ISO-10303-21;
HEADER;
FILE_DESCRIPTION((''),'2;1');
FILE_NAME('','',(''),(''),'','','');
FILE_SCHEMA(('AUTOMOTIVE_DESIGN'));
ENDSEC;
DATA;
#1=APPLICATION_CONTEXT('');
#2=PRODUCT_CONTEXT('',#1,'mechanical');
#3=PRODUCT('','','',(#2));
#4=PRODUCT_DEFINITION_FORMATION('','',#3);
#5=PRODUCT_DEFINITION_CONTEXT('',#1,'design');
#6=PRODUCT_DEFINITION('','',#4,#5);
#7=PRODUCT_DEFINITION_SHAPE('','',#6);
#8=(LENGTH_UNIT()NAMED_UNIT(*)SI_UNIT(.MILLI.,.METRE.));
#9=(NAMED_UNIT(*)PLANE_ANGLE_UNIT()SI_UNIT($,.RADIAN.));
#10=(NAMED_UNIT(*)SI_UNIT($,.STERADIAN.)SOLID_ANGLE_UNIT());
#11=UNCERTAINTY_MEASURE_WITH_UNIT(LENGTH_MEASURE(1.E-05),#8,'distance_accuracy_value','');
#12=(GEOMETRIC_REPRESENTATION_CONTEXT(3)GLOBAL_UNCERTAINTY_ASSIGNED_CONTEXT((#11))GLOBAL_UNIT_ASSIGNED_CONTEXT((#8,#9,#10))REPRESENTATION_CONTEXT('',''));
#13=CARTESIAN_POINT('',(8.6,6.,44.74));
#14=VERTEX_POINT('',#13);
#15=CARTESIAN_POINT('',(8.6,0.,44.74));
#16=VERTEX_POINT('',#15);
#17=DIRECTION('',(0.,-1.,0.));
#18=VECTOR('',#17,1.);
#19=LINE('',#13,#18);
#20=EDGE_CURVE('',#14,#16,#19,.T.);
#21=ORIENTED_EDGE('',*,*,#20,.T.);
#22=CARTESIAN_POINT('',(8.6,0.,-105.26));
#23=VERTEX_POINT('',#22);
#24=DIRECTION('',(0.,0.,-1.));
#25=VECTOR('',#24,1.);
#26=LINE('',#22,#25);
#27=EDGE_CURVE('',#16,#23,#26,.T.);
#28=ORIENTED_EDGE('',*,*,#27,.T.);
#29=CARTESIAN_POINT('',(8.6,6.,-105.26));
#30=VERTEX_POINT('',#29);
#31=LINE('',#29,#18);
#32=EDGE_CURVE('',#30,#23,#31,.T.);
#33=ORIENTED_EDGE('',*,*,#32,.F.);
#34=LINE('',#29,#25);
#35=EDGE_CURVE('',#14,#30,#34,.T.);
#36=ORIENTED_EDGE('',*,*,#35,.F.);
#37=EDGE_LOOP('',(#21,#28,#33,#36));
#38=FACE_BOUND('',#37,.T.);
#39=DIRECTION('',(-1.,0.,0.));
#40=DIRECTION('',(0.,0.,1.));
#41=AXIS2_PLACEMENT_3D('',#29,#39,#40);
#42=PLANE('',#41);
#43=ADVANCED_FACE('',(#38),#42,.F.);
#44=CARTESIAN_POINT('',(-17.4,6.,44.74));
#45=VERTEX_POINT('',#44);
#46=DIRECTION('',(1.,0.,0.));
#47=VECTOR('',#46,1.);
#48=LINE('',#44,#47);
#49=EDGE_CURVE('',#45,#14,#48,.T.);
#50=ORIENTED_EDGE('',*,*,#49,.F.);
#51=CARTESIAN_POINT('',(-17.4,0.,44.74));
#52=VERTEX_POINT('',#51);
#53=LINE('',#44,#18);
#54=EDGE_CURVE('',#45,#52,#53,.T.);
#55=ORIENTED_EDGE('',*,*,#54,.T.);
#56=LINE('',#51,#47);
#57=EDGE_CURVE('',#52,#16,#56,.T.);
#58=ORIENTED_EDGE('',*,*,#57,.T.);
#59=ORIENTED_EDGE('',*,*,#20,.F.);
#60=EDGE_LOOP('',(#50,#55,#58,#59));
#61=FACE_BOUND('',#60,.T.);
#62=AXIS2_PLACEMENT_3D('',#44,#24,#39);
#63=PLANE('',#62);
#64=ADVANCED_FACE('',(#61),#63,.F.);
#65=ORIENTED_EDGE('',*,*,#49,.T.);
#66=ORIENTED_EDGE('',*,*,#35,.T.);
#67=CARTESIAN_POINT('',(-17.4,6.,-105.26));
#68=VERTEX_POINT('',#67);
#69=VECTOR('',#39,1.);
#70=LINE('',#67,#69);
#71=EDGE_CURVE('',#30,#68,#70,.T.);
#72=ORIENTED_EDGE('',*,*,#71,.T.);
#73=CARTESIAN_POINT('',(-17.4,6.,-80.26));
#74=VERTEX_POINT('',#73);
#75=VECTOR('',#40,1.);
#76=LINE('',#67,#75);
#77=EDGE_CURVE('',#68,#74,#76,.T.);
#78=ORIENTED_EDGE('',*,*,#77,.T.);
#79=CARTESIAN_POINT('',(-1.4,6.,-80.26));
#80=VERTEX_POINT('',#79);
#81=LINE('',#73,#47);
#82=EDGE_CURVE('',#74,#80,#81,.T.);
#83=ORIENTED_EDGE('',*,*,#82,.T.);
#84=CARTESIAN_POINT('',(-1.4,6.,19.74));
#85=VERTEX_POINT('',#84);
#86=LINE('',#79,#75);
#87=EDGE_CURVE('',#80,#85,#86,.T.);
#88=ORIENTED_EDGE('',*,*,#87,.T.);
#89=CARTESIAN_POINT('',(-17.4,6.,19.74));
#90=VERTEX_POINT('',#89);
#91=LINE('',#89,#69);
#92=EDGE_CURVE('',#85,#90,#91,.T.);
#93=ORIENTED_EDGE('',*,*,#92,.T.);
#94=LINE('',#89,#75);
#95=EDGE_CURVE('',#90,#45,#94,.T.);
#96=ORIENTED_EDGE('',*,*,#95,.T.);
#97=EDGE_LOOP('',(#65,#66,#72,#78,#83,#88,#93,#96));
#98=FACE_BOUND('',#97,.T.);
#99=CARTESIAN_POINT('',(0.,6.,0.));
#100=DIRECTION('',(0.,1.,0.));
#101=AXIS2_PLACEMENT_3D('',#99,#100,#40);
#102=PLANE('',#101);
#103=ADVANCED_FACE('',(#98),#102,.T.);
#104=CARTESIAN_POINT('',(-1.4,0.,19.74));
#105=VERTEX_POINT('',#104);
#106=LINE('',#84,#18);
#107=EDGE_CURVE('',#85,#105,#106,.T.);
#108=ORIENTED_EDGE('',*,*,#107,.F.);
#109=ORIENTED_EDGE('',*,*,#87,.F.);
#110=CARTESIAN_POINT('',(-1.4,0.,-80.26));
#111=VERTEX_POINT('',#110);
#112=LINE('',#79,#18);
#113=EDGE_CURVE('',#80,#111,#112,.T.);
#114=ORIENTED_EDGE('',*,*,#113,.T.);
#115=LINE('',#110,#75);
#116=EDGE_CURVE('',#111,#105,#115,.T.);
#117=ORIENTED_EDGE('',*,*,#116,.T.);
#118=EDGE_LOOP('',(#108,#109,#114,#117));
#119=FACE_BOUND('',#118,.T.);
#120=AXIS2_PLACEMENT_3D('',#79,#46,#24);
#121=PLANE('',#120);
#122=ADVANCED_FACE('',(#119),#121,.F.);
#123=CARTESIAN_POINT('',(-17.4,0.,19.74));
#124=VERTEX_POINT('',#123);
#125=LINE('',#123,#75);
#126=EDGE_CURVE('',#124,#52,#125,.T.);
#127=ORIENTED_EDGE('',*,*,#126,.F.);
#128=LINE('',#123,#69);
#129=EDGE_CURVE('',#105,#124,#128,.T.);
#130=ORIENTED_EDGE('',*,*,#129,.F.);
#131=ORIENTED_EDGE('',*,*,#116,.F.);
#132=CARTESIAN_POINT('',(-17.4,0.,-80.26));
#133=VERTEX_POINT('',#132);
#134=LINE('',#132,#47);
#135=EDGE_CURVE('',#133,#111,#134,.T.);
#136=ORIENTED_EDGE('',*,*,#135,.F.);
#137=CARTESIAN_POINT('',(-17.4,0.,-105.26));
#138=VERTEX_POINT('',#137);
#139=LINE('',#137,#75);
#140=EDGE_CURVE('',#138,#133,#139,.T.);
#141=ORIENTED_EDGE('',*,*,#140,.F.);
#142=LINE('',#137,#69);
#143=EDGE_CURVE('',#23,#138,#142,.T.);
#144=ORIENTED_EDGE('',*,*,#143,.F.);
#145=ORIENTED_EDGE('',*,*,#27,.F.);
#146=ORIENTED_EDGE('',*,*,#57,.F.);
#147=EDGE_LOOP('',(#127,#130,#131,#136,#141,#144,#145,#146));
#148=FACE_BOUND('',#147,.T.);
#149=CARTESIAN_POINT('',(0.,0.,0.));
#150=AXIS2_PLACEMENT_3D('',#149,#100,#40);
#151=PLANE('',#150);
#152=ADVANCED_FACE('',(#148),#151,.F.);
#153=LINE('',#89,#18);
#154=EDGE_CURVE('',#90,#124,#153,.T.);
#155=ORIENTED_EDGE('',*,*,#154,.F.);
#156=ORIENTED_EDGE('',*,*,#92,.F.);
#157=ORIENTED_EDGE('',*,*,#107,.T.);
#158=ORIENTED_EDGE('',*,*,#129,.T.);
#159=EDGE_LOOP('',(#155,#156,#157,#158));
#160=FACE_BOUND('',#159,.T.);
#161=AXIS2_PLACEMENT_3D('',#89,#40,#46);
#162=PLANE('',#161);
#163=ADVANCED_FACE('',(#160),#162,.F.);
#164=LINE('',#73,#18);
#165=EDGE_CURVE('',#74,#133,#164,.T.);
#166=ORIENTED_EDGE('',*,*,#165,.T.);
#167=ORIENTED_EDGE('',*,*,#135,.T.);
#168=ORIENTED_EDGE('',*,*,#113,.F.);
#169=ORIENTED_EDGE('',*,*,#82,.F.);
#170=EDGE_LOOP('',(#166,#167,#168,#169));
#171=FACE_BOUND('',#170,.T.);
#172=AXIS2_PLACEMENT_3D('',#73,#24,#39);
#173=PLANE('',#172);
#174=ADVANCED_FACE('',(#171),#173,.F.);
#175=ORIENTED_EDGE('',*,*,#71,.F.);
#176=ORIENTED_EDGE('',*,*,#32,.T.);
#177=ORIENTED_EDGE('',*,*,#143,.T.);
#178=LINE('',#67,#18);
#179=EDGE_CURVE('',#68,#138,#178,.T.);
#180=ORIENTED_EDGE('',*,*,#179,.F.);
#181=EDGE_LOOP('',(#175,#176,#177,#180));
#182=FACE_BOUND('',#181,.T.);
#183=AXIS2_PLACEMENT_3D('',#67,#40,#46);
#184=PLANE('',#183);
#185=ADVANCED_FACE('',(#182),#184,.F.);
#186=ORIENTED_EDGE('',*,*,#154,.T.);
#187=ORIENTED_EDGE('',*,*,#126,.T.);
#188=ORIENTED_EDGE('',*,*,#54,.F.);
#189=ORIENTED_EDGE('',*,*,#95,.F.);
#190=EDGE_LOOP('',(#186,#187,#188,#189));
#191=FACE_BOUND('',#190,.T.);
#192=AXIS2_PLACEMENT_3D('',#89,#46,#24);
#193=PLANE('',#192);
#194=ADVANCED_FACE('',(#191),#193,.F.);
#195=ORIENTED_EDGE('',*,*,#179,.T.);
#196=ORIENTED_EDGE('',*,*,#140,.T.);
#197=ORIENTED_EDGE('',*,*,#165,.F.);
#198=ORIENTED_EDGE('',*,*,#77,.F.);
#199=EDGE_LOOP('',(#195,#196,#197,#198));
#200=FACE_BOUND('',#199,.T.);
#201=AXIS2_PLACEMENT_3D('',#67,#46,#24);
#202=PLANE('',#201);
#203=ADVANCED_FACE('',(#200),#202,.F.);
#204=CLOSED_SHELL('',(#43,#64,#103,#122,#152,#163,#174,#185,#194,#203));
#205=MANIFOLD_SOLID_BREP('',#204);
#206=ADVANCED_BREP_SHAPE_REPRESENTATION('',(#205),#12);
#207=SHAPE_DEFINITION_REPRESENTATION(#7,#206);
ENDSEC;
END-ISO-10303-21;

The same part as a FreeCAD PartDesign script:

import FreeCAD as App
import Part
import Sketcher
from FreeCAD import Vector
Q = App.Units.Quantity

doc = App.newDocument("Part")
body = doc.addObject("PartDesign::Body", "Body")

sketch1 = body.newObject("Sketcher::SketchObject", "Sketch")
sketch1.AttachmentSupport = (doc.getObject("XZ_Plane"), [""])
sketch1.MapMode = "FlatFace"
sketch1.addGeometry([
    Part.LineSegment(Vector(-17.4, 19.74, 0), Vector(-17.4, 44.74, 0)),
    Part.LineSegment(Vector(-17.4, 44.74, 0), Vector(8.6, 44.74, 0)),
    Part.LineSegment(Vector(8.6, 44.74, 0), Vector(8.6, -105.26, 0)),
    Part.LineSegment(Vector(8.6, -105.26, 0), Vector(-17.4, -105.26, 0)),
    Part.LineSegment(Vector(-17.4, -105.26, 0), Vector(-17.4, -80.26, 0)),
    Part.LineSegment(Vector(-17.4, -80.26, 0), Vector(-1.4, -80.26, 0)),
    Part.LineSegment(Vector(-1.4, -80.26, 0), Vector(-1.4, 19.74, 0)),
    Part.LineSegment(Vector(-1.4, 19.74, 0), Vector(-17.4, 19.74, 0)),
], False)
sketch1.addConstraint([
    Sketcher.Constraint("Coincident", 0, 2, 1, 1),
    Sketcher.Constraint("Coincident", 1, 2, 2, 1),
    Sketcher.Constraint("Coincident", 2, 2, 3, 1),
    Sketcher.Constraint("Coincident", 3, 2, 4, 1),
    Sketcher.Constraint("Coincident", 4, 2, 5, 1),
    Sketcher.Constraint("Coincident", 5, 2, 6, 1),
    Sketcher.Constraint("Coincident", 6, 2, 7, 1),
    Sketcher.Constraint("Coincident", 7, 2, 0, 1),
    Sketcher.Constraint("Vertical", 0),
    Sketcher.Constraint("Horizontal", 1),
    Sketcher.Constraint("Vertical", 2),
    Sketcher.Constraint("Horizontal", 3),
    Sketcher.Constraint("Vertical", 4),
    Sketcher.Constraint("Horizontal", 5),
    Sketcher.Constraint("Vertical", 6),
    Sketcher.Constraint("Horizontal", 7),
    Sketcher.Constraint("Vertical", 0, 2, 3, 2),
    Sketcher.Constraint("Equal", 0, 4),
    Sketcher.Constraint("DistanceX", 1, 1, 1, 2, Q("26 mm")),
    Sketcher.Constraint("DistanceX", 5, 1, 5, 2, Q("16 mm")),
    Sketcher.Constraint("DistanceY", 0, 1, 0, 2, Q("25 mm")),
    Sketcher.Constraint("DistanceY", 2, 2, 2, 1, Q("150 mm")),
    Sketcher.Constraint("DistanceX", 0, 2, -1, 1, Q("17.4 mm")),
    Sketcher.Constraint("DistanceY", -1, 1, 0, 2, Q("44.74 mm")),
])
pad1 = body.newObject("PartDesign::Pad", "Pad")
pad1.Profile = sketch1
pad1.Length = 6
pad1.Reversed = True

doc.recompute()
